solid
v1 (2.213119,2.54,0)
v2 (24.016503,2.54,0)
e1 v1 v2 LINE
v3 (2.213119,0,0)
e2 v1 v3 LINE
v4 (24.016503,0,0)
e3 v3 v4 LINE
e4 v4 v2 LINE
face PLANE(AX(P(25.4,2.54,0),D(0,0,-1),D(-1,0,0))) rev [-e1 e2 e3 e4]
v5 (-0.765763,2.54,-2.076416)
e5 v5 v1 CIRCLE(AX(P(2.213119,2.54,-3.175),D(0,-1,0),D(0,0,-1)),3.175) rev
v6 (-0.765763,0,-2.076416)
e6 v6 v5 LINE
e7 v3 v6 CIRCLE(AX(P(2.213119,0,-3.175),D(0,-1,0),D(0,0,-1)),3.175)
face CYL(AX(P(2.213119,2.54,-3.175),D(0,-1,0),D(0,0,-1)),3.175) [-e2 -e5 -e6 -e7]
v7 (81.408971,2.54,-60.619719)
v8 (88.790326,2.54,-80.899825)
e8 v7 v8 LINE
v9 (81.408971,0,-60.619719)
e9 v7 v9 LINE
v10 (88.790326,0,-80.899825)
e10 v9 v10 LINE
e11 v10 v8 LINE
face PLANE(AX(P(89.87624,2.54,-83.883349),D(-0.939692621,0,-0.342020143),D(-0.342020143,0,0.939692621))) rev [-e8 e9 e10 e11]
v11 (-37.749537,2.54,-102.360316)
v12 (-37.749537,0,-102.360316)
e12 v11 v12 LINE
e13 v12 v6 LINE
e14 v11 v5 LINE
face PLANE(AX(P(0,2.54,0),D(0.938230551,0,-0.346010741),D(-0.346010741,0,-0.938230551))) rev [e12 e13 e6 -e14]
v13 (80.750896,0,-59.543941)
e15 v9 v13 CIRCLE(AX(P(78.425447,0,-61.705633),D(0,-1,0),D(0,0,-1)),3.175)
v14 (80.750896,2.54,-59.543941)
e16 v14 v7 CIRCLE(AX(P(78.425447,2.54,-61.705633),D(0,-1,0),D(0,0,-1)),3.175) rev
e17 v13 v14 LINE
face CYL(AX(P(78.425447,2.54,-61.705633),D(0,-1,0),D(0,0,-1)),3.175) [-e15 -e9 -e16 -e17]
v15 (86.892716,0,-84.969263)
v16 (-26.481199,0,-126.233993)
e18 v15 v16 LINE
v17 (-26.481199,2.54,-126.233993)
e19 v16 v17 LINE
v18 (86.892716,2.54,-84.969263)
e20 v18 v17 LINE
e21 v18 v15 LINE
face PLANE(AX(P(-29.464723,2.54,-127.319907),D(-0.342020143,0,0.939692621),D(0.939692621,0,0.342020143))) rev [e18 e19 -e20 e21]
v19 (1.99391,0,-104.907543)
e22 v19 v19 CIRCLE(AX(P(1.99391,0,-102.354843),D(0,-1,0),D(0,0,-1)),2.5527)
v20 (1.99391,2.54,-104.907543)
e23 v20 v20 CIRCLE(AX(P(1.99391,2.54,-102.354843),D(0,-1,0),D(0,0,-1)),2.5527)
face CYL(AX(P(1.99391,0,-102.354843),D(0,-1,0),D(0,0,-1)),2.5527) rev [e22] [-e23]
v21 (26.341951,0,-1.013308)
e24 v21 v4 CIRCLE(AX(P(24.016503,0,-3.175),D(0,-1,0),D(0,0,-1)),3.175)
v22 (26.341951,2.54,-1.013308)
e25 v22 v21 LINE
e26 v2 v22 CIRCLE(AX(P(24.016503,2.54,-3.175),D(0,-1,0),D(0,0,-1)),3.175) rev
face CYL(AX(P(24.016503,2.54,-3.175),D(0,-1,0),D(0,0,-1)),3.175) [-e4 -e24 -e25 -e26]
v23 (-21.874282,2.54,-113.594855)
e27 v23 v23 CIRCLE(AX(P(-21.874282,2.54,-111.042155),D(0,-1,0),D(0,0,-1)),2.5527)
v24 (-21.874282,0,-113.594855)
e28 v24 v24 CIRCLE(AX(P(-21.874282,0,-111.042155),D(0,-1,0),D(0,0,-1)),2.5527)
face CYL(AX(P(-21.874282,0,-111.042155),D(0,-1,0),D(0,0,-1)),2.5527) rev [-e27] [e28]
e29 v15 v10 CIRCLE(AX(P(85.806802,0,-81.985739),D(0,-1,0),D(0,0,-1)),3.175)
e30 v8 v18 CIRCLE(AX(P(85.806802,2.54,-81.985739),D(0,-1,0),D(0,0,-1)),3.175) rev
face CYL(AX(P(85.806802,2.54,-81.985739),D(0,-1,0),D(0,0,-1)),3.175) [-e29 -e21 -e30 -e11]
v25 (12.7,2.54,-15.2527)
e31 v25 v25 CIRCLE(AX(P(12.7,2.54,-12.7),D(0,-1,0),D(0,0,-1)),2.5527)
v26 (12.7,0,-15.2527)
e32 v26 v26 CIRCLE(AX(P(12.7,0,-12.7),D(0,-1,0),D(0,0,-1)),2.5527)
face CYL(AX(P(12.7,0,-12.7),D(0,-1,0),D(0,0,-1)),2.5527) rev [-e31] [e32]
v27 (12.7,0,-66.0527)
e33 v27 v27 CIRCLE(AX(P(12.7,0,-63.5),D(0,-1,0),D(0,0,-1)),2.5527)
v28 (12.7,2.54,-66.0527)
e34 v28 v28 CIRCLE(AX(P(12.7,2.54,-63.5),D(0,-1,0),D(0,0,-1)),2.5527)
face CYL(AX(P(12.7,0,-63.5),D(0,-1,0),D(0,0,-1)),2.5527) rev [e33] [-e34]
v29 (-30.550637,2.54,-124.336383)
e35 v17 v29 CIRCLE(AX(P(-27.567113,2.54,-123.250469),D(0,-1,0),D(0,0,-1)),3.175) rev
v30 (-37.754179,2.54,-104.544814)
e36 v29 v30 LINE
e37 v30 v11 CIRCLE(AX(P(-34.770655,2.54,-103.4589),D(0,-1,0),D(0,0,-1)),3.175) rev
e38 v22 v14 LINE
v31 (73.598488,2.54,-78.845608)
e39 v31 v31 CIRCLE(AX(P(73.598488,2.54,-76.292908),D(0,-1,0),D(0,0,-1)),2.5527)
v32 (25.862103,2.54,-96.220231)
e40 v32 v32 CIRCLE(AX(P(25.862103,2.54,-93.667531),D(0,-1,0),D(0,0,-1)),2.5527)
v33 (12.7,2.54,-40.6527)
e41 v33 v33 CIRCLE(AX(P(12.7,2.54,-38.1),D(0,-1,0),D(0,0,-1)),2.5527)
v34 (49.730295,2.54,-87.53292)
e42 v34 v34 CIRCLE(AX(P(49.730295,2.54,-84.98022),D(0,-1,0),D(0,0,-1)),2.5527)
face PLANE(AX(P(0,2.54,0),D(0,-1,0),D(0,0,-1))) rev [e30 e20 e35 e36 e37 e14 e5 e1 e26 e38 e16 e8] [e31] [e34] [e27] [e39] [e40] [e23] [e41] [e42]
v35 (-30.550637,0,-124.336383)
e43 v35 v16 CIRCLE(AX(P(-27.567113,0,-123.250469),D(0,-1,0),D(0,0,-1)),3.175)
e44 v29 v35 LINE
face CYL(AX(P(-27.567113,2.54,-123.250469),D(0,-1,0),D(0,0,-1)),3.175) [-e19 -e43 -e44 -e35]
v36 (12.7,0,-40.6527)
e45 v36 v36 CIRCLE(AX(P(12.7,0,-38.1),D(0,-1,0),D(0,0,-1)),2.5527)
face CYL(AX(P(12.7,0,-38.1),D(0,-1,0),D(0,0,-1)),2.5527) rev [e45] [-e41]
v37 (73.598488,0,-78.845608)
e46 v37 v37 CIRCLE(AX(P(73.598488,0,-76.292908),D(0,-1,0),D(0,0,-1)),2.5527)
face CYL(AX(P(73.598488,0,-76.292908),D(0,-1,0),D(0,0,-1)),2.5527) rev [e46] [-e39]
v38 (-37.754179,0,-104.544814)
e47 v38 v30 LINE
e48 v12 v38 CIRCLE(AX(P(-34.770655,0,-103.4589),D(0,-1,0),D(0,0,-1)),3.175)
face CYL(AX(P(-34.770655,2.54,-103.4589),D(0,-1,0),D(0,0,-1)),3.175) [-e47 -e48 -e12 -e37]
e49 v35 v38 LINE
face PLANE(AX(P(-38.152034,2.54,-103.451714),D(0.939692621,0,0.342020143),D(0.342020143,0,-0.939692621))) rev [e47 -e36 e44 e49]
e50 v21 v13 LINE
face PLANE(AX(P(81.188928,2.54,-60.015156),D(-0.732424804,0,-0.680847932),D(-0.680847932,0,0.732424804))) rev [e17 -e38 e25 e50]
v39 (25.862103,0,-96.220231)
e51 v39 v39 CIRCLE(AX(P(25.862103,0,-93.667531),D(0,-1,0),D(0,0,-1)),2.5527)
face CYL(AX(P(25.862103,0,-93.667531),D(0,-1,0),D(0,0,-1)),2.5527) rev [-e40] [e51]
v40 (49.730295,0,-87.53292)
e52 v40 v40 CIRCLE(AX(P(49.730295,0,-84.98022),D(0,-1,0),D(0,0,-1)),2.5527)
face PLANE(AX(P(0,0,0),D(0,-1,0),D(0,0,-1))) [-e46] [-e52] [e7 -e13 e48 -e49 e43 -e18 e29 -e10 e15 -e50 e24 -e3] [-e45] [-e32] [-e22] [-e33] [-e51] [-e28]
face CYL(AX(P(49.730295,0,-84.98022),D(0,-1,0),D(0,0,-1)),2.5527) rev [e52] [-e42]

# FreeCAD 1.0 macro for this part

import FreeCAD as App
import Part
import Sketcher

V = App.Vector
Q = App.Units.Quantity


def edges_at(feature, points):
    """Names of the edges that pass closest to the given points."""
    edges = feature.Shape.Edges
    near = lambda p: min(range(len(edges)), key=lambda i: edges[i].distToShape(Part.Vertex(*p))[0])
    return sorted({f"Edge{near(p) + 1}" for p in points})

doc = App.newDocument("Part")
body = doc.addObject("PartDesign::Body", "Body")

# Sketch on XZ plane
sketch1 = body.newObject("Sketcher::SketchObject", "Sketch")
sketch1.AttachmentSupport = (doc.getObject("XZ_Plane"), [""])
sketch1.MapMode = "FlatFace"
sketch1.addGeometry([
    Part.LineSegment(V(-38, -103, 0), V(0, 0, 0)),  # 0
    Part.LineSegment(V(0, 0, 0), V(25, 0, 0)),  # 1
    Part.LineSegment(V(25, 0, 0), V(81, -60, 0)),  # 2
    Part.LineSegment(V(81, -60, 0), V(90, -84, 0)),  # 3
    Part.LineSegment(V(90, -84, 0), V(-29, -127, 0)),  # 4
    Part.LineSegment(V(-29, -127, 0), V(-38, -103, 0)),  # 5
], False)
sketch1.addConstraint([
    Sketcher.Constraint("Coincident", 0, 2, 1, 1),
    Sketcher.Constraint("Coincident", 1, 2, 2, 1),
    Sketcher.Constraint("Coincident", 2, 2, 3, 1),
    Sketcher.Constraint("Coincident", 3, 2, 4, 1),
    Sketcher.Constraint("Coincident", 4, 2, 5, 1),
    Sketcher.Constraint("Coincident", 5, 2, 0, 1),
    Sketcher.Constraint("Horizontal", 1),
    Sketcher.Constraint("Coincident", 0, 2, -1, 1),
    Sketcher.Constraint("Perpendicular", 3, 4),
    Sketcher.Constraint("Perpendicular", 4, 5),
    Sketcher.Constraint("Equal", 3, 5),
    Sketcher.Constraint("DistanceX", 1, 1, 1, 2, Q("1 in")),
    Sketcher.Constraint("Distance", 3, Q("1 in")),
    Sketcher.Constraint("Distance", 4, Q("5 in")),
    Sketcher.Constraint("Angle", 3, Q("-70 deg")),
    Sketcher.Constraint("DistanceX", -1, 1, 2, 2, Q("81.188928 mm")),
    Sketcher.Constraint("DistanceY", 3, 2, -1, 1, Q("83.883349 mm")),
])
pad1 = body.newObject("PartDesign::Pad", "Pad")
pad1.Profile = sketch1
pad1.Length = Q("0.1 in")
pad1.Reversed = True

# Sketch on XZ plane
sketch2 = body.newObject("Sketcher::SketchObject", "Sketch001")
sketch2.AttachmentSupport = (doc.getObject("XZ_Plane"), [""])
sketch2.MapMode = "FlatFace"
sketch2.addGeometry([
    Part.Circle(V(73.6, -76.3, 0), V(0, 0, 1), 2.6),  # 0
    Part.Circle(V(49.7, -85, 0), V(0, 0, 1), 2.6),  # 1
    Part.Circle(V(25.9, -93.7, 0), V(0, 0, 1), 2.6),  # 2
    Part.Circle(V(2, -102.4, 0), V(0, 0, 1), 2.6),  # 3
    Part.Circle(V(-21.9, -111, 0), V(0, 0, 1), 2.6),  # 4
    Part.Circle(V(12.7, -63.5, 0), V(0, 0, 1), 2.6),  # 5
    Part.Circle(V(12.7, -38.1, 0), V(0, 0, 1), 2.6),  # 6
    Part.Circle(V(12.7, -12.7, 0), V(0, 0, 1), 2.6),  # 7
], False)
sketch2.addConstraint([
    Sketcher.Constraint("Equal", 0, 1),
    Sketcher.Constraint("Equal", 1, 2),
    Sketcher.Constraint("Equal", 2, 3),
    Sketcher.Constraint("Equal", 3, 4),
    Sketcher.Constraint("Equal", 4, 5),
    Sketcher.Constraint("Equal", 5, 6),
    Sketcher.Constraint("Equal", 6, 7),
    Sketcher.Constraint("Vertical", 5, 3, 6, 3),
    Sketcher.Constraint("Vertical", 6, 3, 7, 3),
    Sketcher.Constraint("Diameter", 0, Q("0.201 in")),
    Sketcher.Constraint("DistanceY", 5, 3, 6, 3, Q("1 in")),
    Sketcher.Constraint("DistanceY", 6, 3, 7, 3, Q("1 in")),
    Sketcher.Constraint("DistanceX", -1, 1, 5, 3, Q("0.5 in")),
    Sketcher.Constraint("DistanceY", 5, 3, -1, 1, Q("2.5 in")),
    Sketcher.Constraint("DistanceY", 0, 3, -1, 1, Q("76.292908 mm")),
    Sketcher.Constraint("DistanceY", 1, 3, -1, 1, Q("84.98022 mm")),
    Sketcher.Constraint("DistanceY", 2, 3, -1, 1, Q("93.667531 mm")),
    Sketcher.Constraint("DistanceX", -1, 1, 3, 3, Q("1.99391 mm")),
    Sketcher.Constraint("DistanceY", 3, 3, 2, 3, Q("8.687312 mm")),
    Sketcher.Constraint("DistanceY", 4, 3, 3, 3, Q("8.687312 mm")),
    Sketcher.Constraint("DistanceX", 4, 3, 0, 3, Q("95.47277 mm")),
    Sketcher.Constraint("DistanceX", -1, 1, 0, 3, Q("73.598488 mm")),
    Sketcher.Constraint("DistanceX", -1, 1, 1, 3, Q("49.730295 mm")),
    Sketcher.Constraint("DistanceX", -1, 1, 2, 3, Q("25.862103 mm")),
])
doc.recompute()
hole = body.newObject("PartDesign::Hole", "Hole")
hole.Profile = sketch2
hole.ThreadType = "None"
hole.Diameter = Q("0.201 in")
hole.DepthType = "ThroughAll"
doc.recompute()

fillet = body.newObject("PartDesign::Fillet", "Fillet")
fillet.Base = (hole, edges_at(hole, [
    (0, 1.27, 0),
    (-38.152, 1.27, -103.452),
    (-29.465, 1.27, -127.32),
    (89.876, 1.27, -83.883),
    (81.189, 1.27, -60.015),
    (25.4, 1.27, 0),
]))
fillet.Radius = Q("0.125 in")

doc.recompute()
